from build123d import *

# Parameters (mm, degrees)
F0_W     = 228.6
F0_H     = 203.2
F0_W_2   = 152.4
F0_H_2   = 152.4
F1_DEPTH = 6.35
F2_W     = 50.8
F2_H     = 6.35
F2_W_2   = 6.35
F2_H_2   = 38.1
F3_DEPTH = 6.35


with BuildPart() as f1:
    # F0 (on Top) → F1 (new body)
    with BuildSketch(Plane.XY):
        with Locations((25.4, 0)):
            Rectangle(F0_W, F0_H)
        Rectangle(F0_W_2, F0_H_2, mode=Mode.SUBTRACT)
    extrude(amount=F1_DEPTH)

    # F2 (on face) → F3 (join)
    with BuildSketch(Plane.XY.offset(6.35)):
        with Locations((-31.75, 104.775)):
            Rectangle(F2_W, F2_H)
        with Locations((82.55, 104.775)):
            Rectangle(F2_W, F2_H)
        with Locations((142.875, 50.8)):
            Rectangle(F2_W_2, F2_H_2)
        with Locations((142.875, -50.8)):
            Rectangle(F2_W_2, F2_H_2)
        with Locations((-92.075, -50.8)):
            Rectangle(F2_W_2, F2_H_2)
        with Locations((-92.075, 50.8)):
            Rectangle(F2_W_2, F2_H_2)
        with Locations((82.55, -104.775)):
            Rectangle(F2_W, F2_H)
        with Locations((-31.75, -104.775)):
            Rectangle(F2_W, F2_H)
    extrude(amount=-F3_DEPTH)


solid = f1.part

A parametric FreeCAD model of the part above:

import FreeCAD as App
import Part
import Sketcher
from FreeCAD import Vector
Q = App.Units.Quantity

doc = App.newDocument("Part")
params = doc.addObject("Spreadsheet::Sheet", "Params")
for row, (alias, value) in enumerate([
    ("sketch1_width", "9 in"),
    ("sketch1_width2", "6 in"),
    ("sketch1_height", "8 in"),
    ("pad1_length", "0.25 in"),
    ("sketch2_width", "2 in"),
    ("sketch2_height", "1.5 in"),
    ("pad2_length", "0.25 in"),
], start=1):
    params.set(f"A{row}", alias)
    params.set(f"B{row}", "=" + value)
    params.setAlias(f"B{row}", alias)

body = doc.addObject("PartDesign::Body", "Body")

# Sketch on XY plane
sketch1 = body.newObject("Sketcher::SketchObject", "Sketch")
sketch1.AttachmentSupport = (doc.getObject("XY_Plane"), [""])
sketch1.MapMode = "FlatFace"
sketch1.addGeometry([
    Part.LineSegment(Vector(-89, 102, 0), Vector(-89, -102, 0)),  # 0
    Part.LineSegment(Vector(-89, -102, 0), Vector(140, -102, 0)),  # 1
    Part.LineSegment(Vector(140, -102, 0), Vector(140, 102, 0)),  # 2
    Part.LineSegment(Vector(140, 102, 0), Vector(-89, 102, 0)),  # 3
    Part.LineSegment(Vector(76, -76, 0), Vector(-76, -76, 0)),  # 4
    Part.LineSegment(Vector(-76, -76, 0), Vector(-76, 76, 0)),  # 5
    Part.LineSegment(Vector(-76, 76, 0), Vector(76, 76, 0)),  # 6
    Part.LineSegment(Vector(76, 76, 0), Vector(76, -76, 0)),  # 7
], False)
sketch1.addConstraint([
    Sketcher.Constraint("Coincident", 0, 2, 1, 1),
    Sketcher.Constraint("Coincident", 1, 2, 2, 1),
    Sketcher.Constraint("Coincident", 2, 2, 3, 1),
    Sketcher.Constraint("Coincident", 3, 2, 0, 1),
    Sketcher.Constraint("Coincident", 4, 2, 5, 1),
    Sketcher.Constraint("Coincident", 5, 2, 6, 1),
    Sketcher.Constraint("Coincident", 6, 2, 7, 1),
    Sketcher.Constraint("Coincident", 7, 2, 4, 1),
    Sketcher.Constraint("Vertical", 0),
    Sketcher.Constraint("Horizontal", 1),
    Sketcher.Constraint("Vertical", 2),
    Sketcher.Constraint("Horizontal", 3),
    Sketcher.Constraint("Horizontal", 4),
    Sketcher.Constraint("Vertical", 5),
    Sketcher.Constraint("Horizontal", 6),
    Sketcher.Constraint("Vertical", 7),
    Sketcher.Constraint("Symmetric", 4, 2, 6, 2, -1, 1),
    Sketcher.Constraint("Equal", 6, 5),
    Sketcher.Constraint("DistanceX", 1, 1, 1, 2, Q("9 in")),
    Sketcher.Constraint("DistanceX", 4, 2, 4, 1, Q("6 in")),
    Sketcher.Constraint("DistanceY", 0, 2, 0, 1, Q("8 in")),
    Sketcher.Constraint("DistanceY", 0, 2, -1, 1, Q("4 in")),
    Sketcher.Constraint("DistanceX", 0, 2, -1, 1, Q("3.5 in")),
])
sketch1.setExpression("Constraints[18]", "Params.sketch1_width")
sketch1.setExpression("Constraints[19]", "Params.sketch1_width2")
sketch1.setExpression("Constraints[20]", "Params.sketch1_height")
pad1 = body.newObject("PartDesign::Pad", "Pad")
pad1.Profile = sketch1
pad1.setExpression("Length", "Params.pad1_length")

# Sketch on XY plane
sketch2 = body.newObject("Sketcher::SketchObject", "Sketch001")
sketch2.AttachmentSupport = (doc.getObject("XY_Plane"), [""])
sketch2.MapMode = "FlatFace"
sketch2.AttachmentOffset = App.Placement(Vector(0, 0, 0.25 * 25.4), App.Rotation())
sketch2.addGeometry([
    Part.LineSegment(Vector(-57, 108, 0), Vector(-57, 102, 0)),  # 0
    Part.LineSegment(Vector(-57, 102, 0), Vector(-6, 102, 0)),  # 1
    Part.LineSegment(Vector(-6, 102, 0), Vector(-6, 108, 0)),  # 2
    Part.LineSegment(Vector(-6, 108, 0), Vector(-57, 108, 0)),  # 3
    Part.LineSegment(Vector(57, 108, 0), Vector(57, 102, 0)),  # 4
    Part.LineSegment(Vector(57, 102, 0), Vector(108, 102, 0)),  # 5
    Part.LineSegment(Vector(108, 102, 0), Vector(108, 108, 0)),  # 6
    Part.LineSegment(Vector(108, 108, 0), Vector(57, 108, 0)),  # 7
    Part.LineSegment(Vector(140, 70, 0), Vector(140, 32, 0)),  # 8
    Part.LineSegment(Vector(140, 32, 0), Vector(146, 32, 0)),  # 9
    Part.LineSegment(Vector(146, 32, 0), Vector(146, 70, 0)),  # 10
    Part.LineSegment(Vector(146, 70, 0), Vector(140, 70, 0)),  # 11
    Part.LineSegment(Vector(140, -32, 0), Vector(140, -70, 0)),  # 12
    Part.LineSegment(Vector(140, -70, 0), Vector(146, -70, 0)),  # 13
    Part.LineSegment(Vector(146, -70, 0), Vector(146, -32, 0)),  # 14
    Part.LineSegment(Vector(146, -32, 0), Vector(140, -32, 0)),  # 15
    Part.LineSegment(Vector(-95, -32, 0), Vector(-95, -70, 0)),  # 16
    Part.LineSegment(Vector(-95, -70, 0), Vector(-89, -70, 0)),  # 17
    Part.LineSegment(Vector(-89, -70, 0), Vector(-89, -32, 0)),  # 18
    Part.LineSegment(Vector(-89, -32, 0), Vector(-95, -32, 0)),  # 19
    Part.LineSegment(Vector(-95, 70, 0), Vector(-95, 32, 0)),  # 20
    Part.LineSegment(Vector(-95, 32, 0), Vector(-89, 32, 0)),  # 21
    Part.LineSegment(Vector(-89, 32, 0), Vector(-89, 70, 0)),  # 22
    Part.LineSegment(Vector(-89, 70, 0), Vector(-95, 70, 0)),  # 23
    Part.LineSegment(Vector(57, -102, 0), Vector(57, -108, 0)),  # 24
    Part.LineSegment(Vector(57, -108, 0), Vector(108, -108, 0)),  # 25
    Part.LineSegment(Vector(108, -108, 0), Vector(108, -102, 0)),  # 26
    Part.LineSegment(Vector(108, -102, 0), Vector(57, -102, 0)),  # 27
    Part.LineSegment(Vector(-57, -102, 0), Vector(-57, -108, 0)),  # 28
    Part.LineSegment(Vector(-57, -108, 0), Vector(-6, -108, 0)),  # 29
    Part.LineSegment(Vector(-6, -108, 0), Vector(-6, -102, 0)),  # 30
    Part.LineSegment(Vector(-6, -102, 0), Vector(-57, -102, 0)),  # 31
], False)
sketch2.addConstraint([
    Sketcher.Constraint("Coincident", 0, 2, 1, 1),
    Sketcher.Constraint("Coincident", 1, 2, 2, 1),
    Sketcher.Constraint("Coincident", 2, 2, 3, 1),
    Sketcher.Constraint("Coincident", 3, 2, 0, 1),
    Sketcher.Constraint("Coincident", 4, 2, 5, 1),
    Sketcher.Constraint("Coincident", 5, 2, 6, 1),
    Sketcher.Constraint("Coincident", 6, 2, 7, 1),
    Sketcher.Constraint("Coincident", 7, 2, 4, 1),
    Sketcher.Constraint("Coincident", 8, 2, 9, 1),
    Sketcher.Constraint("Coincident", 9, 2, 10, 1),
    Sketcher.Constraint("Coincident", 10, 2, 11, 1),
    Sketcher.Constraint("Coincident", 11, 2, 8, 1),
    Sketcher.Constraint("Coincident", 12, 2, 13, 1),
    Sketcher.Constraint("Coincident", 13, 2, 14, 1),
    Sketcher.Constraint("Coincident", 14, 2, 15, 1),
    Sketcher.Constraint("Coincident", 15, 2, 12, 1),
    Sketcher.Constraint("Coincident", 16, 2, 17, 1),
    Sketcher.Constraint("Coincident", 17, 2, 18, 1),
    Sketcher.Constraint("Coincident", 18, 2, 19, 1),
    Sketcher.Constraint("Coincident", 19, 2, 16, 1),
    Sketcher.Constraint("Coincident", 20, 2, 21, 1),
    Sketcher.Constraint("Coincident", 21, 2, 22, 1),
    Sketcher.Constraint("Coincident", 22, 2, 23, 1),
    Sketcher.Constraint("Coincident", 23, 2, 20, 1),
    Sketcher.Constraint("Coincident", 24, 2, 25, 1),
    Sketcher.Constraint("Coincident", 25, 2, 26, 1),
    Sketcher.Constraint("Coincident", 26, 2, 27, 1),
    Sketcher.Constraint("Coincident", 27, 2, 24, 1),
    Sketcher.Constraint("Coincident", 28, 2, 29, 1),
    Sketcher.Constraint("Coincident", 29, 2, 30, 1),
    Sketcher.Constraint("Coincident", 30, 2, 31, 1),
    Sketcher.Constraint("Coincident", 31, 2, 28, 1),
    Sketcher.Constraint("Vertical", 0),
    Sketcher.Constraint("Horizontal", 1),
    Sketcher.Constraint("Vertical", 2),
    Sketcher.Constraint("Horizontal", 3),
    Sketcher.Constraint("Vertical", 4),
    Sketcher.Constraint("Horizontal", 5),
    Sketcher.Constraint("Vertical", 6),
    Sketcher.Constraint("Horizontal", 7),
    Sketcher.Constraint("Vertical", 8),
    Sketcher.Constraint("Horizontal", 9),
    Sketcher.Constraint("Vertical", 10),
    Sketcher.Constraint("Horizontal", 11),
    Sketcher.Constraint("Vertical", 12),
    Sketcher.Constraint("Horizontal", 13),
    Sketcher.Constraint("Vertical", 14),
    Sketcher.Constraint("Horizontal", 15),
    Sketcher.Constraint("Vertical", 16),
    Sketcher.Constraint("Horizontal", 17),
    Sketcher.Constraint("Vertical", 18),
    Sketcher.Constraint("Horizontal", 19),
    Sketcher.Constraint("Vertical", 20),
    Sketcher.Constraint("Horizontal", 21),
    Sketcher.Constraint("Vertical", 22),
    Sketcher.Constraint("Horizontal", 23),
    Sketcher.Constraint("Vertical", 24),
    Sketcher.Constraint("Horizontal", 25),
    Sketcher.Constraint("Vertical", 26),
    Sketcher.Constraint("Horizontal", 27),
    Sketcher.Constraint("Vertical", 28),
    Sketcher.Constraint("Horizontal", 29),
    Sketcher.Constraint("Vertical", 30),
    Sketcher.Constraint("Horizontal", 31),
    Sketcher.Constraint("Symmetric", 3, 2, 24, 2, -1, 1),
    Sketcher.Constraint("Symmetric", 7, 2, 28, 2, -1, 1),
    Sketcher.Constraint("Symmetric", 0, 2, 4, 2, -2),
    Sketcher.Constraint("Symmetric", 11, 2, 12, 2, -1),
    Sketcher.Constraint("Symmetric", 9, 2, 14, 2, -1),
    Sketcher.Constraint("Symmetric", 19, 2, 20, 2, -1),
    Sketcher.Constraint("Symmetric", 17, 2, 22, 2, -1),
    Sketcher.Constraint("Symmetric", 6, 2, 25, 2, -1),
    Sketcher.Constraint("Symmetric", 1, 2, 30, 2, -1),
    Sketcher.Constraint("Horizontal", 13, 2, 16, 2),
    Sketcher.Constraint("Horizontal", 15, 2, 18, 2),
    Sketcher.Constraint("Horizontal", 27, 2, 30, 2),
    Sketcher.Constraint("Equal", 3, 5),
    Sketcher.Constraint("Equal", 15, 17),
    Sketcher.Constraint("Equal", 23, 0),
    Sketcher.Constraint("DistanceX", 1, 1, 1, 2, Q("2 in")),
    Sketcher.Constraint("DistanceY", 8, 2, 8, 1, Q("1.5 in")),
    Sketcher.Constraint("DistanceY", -1, 1, 0, 2, Q("4 in")),
    Sketcher.Constraint("DistanceY", 8, 2, 6, 2, Q("3 in")),
    Sketcher.Constraint("DistanceY", 12, 2, 8, 2, Q("4 in")),
    Sketcher.Constraint("DistanceX", 16, 2, 4, 2, Q("6 in")),
    Sketcher.Constraint("DistanceX", -1, 1, 8, 2, Q("5.5 in")),
    Sketcher.Constraint("DistanceX", 17, 2, -1, 1, Q("3.5 in")),
])
sketch2.setExpression("Constraints[79]", "Params.sketch2_width")
sketch2.setExpression("Constraints[80]", "Params.sketch2_height")
pad2 = body.newObject("PartDesign::Pad", "Pad001")
pad2.Profile = sketch2
pad2.setExpression("Length", "Params.pad2_length")
pad2.Reversed = True

doc.recompute()
